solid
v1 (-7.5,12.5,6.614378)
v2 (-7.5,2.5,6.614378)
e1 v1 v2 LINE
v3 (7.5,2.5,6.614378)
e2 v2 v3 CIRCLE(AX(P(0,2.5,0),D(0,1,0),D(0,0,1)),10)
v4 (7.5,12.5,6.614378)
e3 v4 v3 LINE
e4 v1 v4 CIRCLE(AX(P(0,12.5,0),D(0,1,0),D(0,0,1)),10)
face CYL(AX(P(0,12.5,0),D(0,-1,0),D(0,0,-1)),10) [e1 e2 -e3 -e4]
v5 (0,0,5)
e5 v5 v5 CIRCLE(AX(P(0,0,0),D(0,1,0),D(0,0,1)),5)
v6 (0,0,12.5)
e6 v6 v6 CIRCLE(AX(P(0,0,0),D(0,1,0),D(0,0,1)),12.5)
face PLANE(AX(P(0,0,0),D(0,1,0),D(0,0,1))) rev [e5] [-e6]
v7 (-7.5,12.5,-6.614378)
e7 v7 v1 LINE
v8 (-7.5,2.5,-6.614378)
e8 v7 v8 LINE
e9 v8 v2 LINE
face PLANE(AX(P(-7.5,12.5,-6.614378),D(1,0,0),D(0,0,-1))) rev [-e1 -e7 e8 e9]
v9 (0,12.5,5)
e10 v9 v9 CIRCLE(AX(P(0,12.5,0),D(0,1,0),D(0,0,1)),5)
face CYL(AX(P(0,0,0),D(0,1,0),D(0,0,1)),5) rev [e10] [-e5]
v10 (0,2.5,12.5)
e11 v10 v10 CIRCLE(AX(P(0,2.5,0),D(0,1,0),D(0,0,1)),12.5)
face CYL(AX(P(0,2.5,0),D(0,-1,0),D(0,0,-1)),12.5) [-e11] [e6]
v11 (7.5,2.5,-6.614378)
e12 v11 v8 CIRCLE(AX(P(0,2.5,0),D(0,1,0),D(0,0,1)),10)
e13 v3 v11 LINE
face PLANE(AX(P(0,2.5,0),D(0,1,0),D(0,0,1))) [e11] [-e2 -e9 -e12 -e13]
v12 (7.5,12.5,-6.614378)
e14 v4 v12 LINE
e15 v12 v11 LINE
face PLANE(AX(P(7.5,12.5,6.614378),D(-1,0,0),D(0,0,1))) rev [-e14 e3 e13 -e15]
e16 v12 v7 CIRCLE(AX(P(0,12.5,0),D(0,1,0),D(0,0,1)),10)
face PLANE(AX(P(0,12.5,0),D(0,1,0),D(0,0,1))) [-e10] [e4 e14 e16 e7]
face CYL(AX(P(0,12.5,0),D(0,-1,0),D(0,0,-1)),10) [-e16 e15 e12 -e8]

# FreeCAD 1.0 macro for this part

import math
import FreeCAD as App
import Part
import Sketcher
Q = App.Units.Quantity

doc = App.newDocument("Part")
body = doc.addObject("PartDesign::Body", "Body")

sketch1 = body.newObject("Sketcher::SketchObject", "Sketch")
sketch1.AttachmentSupport = (doc.getObject("XZ_Plane"), [""])
sketch1.MapMode = "FlatFace"
sketch1.addGeometry(Part.Circle(App.Vector(0, 0, 0), App.Vector(0, 0, 1), 12), False)
sketch1.addConstraint(Sketcher.Constraint("Coincident", 0, 3, -1, 1))
sketch1.addConstraint(Sketcher.Constraint("Diameter", 0, Q("25 mm")))
pad1 = body.newObject("PartDesign::Pad", "Pad")
pad1.Profile = sketch1
pad1.Length = 2.5
pad1.Reversed = True

sketch2 = body.newObject("Sketcher::SketchObject", "Sketch001")
sketch2.AttachmentSupport = (doc.getObject("XZ_Plane"), [""])
sketch2.MapMode = "FlatFace"
sketch2.AttachmentOffset = App.Placement(App.Vector(0, 0, -2.5), App.Rotation())
sketch2.addGeometry(Part.LineSegment(App.Vector(-8, -7, 0), App.Vector(-8, 7, 0)), False)
sketch2.addGeometry(Part.ArcOfCircle(Part.Circle(App.Vector(0, 0, 0), App.Vector(0, 0, 1), 10), math.radians(41), math.radians(139)), False)
sketch2.addGeometry(Part.LineSegment(App.Vector(8, 7, 0), App.Vector(8, -7, 0)), False)
sketch2.addGeometry(Part.ArcOfCircle(Part.Circle(App.Vector(0, 0, 0), App.Vector(0, 0, 1), 10), math.radians(-139), math.radians(-41)), False)
sketch2.addConstraint(Sketcher.Constraint("Coincident", 0, 2, 1, 2))
sketch2.addConstraint(Sketcher.Constraint("Coincident", 1, 1, 2, 1))
sketch2.addConstraint(Sketcher.Constraint("Coincident", 2, 2, 3, 2))
sketch2.addConstraint(Sketcher.Constraint("Coincident", 3, 1, 0, 1))
sketch2.addConstraint(Sketcher.Constraint("Vertical", 0))
sketch2.addConstraint(Sketcher.Constraint("Vertical", 2))
sketch2.addConstraint(Sketcher.Constraint("Coincident", 1, 3, -1, 1))
sketch2.addConstraint(Sketcher.Constraint("Coincident", 3, 3, -1, 1))
sketch2.addConstraint(Sketcher.Constraint("Equal", 1, 3))
sketch2.addConstraint(Sketcher.Constraint("Horizontal", 0, 2, 1, 1))
sketch2.addConstraint(Sketcher.Constraint("Radius", 1, Q("10 mm")))
sketch2.addConstraint(Sketcher.Constraint("DistanceX", 0, 2, 1, 1, Q("15 mm")))
pad2 = body.newObject("PartDesign::Pad", "Pad001")
pad2.Profile = sketch2
pad2.Length = 10
pad2.Reversed = True

sketch3 = body.newObject("Sketcher::SketchObject", "Sketch002")
sketch3.AttachmentSupport = (doc.getObject("XZ_Plane"), [""])
sketch3.MapMode = "FlatFace"
sketch3.AttachmentOffset = App.Placement(App.Vector(0, 0, -12.5), App.Rotation())
sketch3.addGeometry(Part.Circle(App.Vector(0, 0, 0), App.Vector(0, 0, 1), 5), False)
sketch3.addConstraint(Sketcher.Constraint("Coincident", 0, 3, -1, 1))
sketch3.addConstraint(Sketcher.Constraint("Diameter", 0, Q("10 mm")))
pocket1 = body.newObject("PartDesign::Pocket", "Pocket")
pocket1.Profile = sketch3
pocket1.Type = "ThroughAll"
pocket1.Reversed = True

doc.recompute()
